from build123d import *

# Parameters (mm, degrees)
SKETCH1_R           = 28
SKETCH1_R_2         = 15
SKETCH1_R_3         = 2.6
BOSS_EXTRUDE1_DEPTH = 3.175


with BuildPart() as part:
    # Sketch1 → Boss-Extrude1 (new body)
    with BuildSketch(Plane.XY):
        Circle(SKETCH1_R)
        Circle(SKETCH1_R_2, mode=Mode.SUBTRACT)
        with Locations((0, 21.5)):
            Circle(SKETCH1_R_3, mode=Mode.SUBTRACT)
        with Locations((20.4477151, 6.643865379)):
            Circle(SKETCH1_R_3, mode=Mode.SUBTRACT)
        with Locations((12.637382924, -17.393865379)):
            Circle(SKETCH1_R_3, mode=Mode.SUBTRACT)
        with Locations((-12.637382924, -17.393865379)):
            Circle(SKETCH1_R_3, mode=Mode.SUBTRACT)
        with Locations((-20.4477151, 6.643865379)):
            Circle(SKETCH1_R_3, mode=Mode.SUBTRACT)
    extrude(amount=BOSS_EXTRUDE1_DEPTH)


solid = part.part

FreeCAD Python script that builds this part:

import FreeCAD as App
import Part
import Sketcher

V = App.Vector

doc = App.newDocument("Part")
params = doc.addObject("Spreadsheet::Sheet", "Params")
for row, (alias, value) in enumerate([
    ("sketch1_diameter", "56 mm"),
    ("sketch1_diameter2", "30 mm"),
    ("sketch1_diameter3", "5.2 mm"),
    ("pad1_length", "3.175 mm"),
], start=1):
    params.set(f"A{row}", alias)
    params.set(f"B{row}", "=" + value)
    params.setAlias(f"B{row}", alias)

body = doc.addObject("PartDesign::Body", "Body")

sketch1 = body.newObject("Sketcher::SketchObject", "Sketch")
sketch1.AttachmentSupport = (doc.getObject("XY_Plane"), [""])
sketch1.MapMode = "FlatFace"
sketch1.addGeometry(Part.Circle(V(0, 0, 0), V(0, 0, 1), 28), False)
sketch1.addGeometry(Part.Circle(V(-12.637383, -17.393865, 0), V(0, 0, 1), 2.6), False)
sketch1.addGeometry(Part.Circle(V(12.637383, -17.393865, 0), V(0, 0, 1), 2.6), False)
sketch1.addGeometry(Part.Circle(V(0, 0, 0), V(0, 0, 1), 15), False)
sketch1.addGeometry(Part.Circle(V(-20.447715, 6.643865, 0), V(0, 0, 1), 2.6), False)
sketch1.addGeometry(Part.Circle(V(20.447715, 6.643865, 0), V(0, 0, 1), 2.6), False)
sketch1.addGeometry(Part.Circle(V(0, 21.5, 0), V(0, 0, 1), 2.6), False)
sketch1.addConstraint(Sketcher.Constraint("Coincident", 0, 3, -1, 1))
sketch1.addConstraint(Sketcher.Constraint("Coincident", 3, 3, -1, 1))
sketch1.addConstraint(Sketcher.Constraint("Equal", 1, 2))
sketch1.addConstraint(Sketcher.Constraint("Equal", 2, 4))
sketch1.addConstraint(Sketcher.Constraint("Equal", 4, 5))
sketch1.addConstraint(Sketcher.Constraint("Equal", 5, 6))
sketch1.addConstraint(Sketcher.Constraint("Symmetric", 1, 3, 2, 3, -2))
sketch1.addConstraint(Sketcher.Constraint("Symmetric", 4, 3, 5, 3, -2))
sketch1.addConstraint(Sketcher.Constraint("PointOnObject", 6, 3, -2))
sketch1.addConstraint(Sketcher.Constraint("Diameter", 0, 56.0))
sketch1.addConstraint(Sketcher.Constraint("Diameter", 3, 30.0))
sketch1.addConstraint(Sketcher.Constraint("Diameter", 1, 5.2))
sketch1.addConstraint(Sketcher.Constraint("DistanceY", -1, 1, 6, 3, 21.5))
sketch1.addConstraint(Sketcher.Constraint("DistanceX", 4, 3, 2, 3, 33.085098))
sketch1.addConstraint(Sketcher.Constraint("DistanceY", 1, 3, 4, 3, 24.037731))
sketch1.addConstraint(Sketcher.Constraint("DistanceX", 4, 3, 5, 3, 40.89543))
sketch1.addConstraint(Sketcher.Constraint("DistanceY", 1, 3, -1, 1, 17.393865))
sketch1.setExpression("Constraints[9]", "Params.sketch1_diameter")
sketch1.setExpression("Constraints[10]", "Params.sketch1_diameter2")
sketch1.setExpression("Constraints[11]", "Params.sketch1_diameter3")
pad1 = body.newObject("PartDesign::Pad", "Pad")
pad1.Profile = sketch1
pad1.setExpression("Length", "Params.pad1_length")

doc.recompute()
